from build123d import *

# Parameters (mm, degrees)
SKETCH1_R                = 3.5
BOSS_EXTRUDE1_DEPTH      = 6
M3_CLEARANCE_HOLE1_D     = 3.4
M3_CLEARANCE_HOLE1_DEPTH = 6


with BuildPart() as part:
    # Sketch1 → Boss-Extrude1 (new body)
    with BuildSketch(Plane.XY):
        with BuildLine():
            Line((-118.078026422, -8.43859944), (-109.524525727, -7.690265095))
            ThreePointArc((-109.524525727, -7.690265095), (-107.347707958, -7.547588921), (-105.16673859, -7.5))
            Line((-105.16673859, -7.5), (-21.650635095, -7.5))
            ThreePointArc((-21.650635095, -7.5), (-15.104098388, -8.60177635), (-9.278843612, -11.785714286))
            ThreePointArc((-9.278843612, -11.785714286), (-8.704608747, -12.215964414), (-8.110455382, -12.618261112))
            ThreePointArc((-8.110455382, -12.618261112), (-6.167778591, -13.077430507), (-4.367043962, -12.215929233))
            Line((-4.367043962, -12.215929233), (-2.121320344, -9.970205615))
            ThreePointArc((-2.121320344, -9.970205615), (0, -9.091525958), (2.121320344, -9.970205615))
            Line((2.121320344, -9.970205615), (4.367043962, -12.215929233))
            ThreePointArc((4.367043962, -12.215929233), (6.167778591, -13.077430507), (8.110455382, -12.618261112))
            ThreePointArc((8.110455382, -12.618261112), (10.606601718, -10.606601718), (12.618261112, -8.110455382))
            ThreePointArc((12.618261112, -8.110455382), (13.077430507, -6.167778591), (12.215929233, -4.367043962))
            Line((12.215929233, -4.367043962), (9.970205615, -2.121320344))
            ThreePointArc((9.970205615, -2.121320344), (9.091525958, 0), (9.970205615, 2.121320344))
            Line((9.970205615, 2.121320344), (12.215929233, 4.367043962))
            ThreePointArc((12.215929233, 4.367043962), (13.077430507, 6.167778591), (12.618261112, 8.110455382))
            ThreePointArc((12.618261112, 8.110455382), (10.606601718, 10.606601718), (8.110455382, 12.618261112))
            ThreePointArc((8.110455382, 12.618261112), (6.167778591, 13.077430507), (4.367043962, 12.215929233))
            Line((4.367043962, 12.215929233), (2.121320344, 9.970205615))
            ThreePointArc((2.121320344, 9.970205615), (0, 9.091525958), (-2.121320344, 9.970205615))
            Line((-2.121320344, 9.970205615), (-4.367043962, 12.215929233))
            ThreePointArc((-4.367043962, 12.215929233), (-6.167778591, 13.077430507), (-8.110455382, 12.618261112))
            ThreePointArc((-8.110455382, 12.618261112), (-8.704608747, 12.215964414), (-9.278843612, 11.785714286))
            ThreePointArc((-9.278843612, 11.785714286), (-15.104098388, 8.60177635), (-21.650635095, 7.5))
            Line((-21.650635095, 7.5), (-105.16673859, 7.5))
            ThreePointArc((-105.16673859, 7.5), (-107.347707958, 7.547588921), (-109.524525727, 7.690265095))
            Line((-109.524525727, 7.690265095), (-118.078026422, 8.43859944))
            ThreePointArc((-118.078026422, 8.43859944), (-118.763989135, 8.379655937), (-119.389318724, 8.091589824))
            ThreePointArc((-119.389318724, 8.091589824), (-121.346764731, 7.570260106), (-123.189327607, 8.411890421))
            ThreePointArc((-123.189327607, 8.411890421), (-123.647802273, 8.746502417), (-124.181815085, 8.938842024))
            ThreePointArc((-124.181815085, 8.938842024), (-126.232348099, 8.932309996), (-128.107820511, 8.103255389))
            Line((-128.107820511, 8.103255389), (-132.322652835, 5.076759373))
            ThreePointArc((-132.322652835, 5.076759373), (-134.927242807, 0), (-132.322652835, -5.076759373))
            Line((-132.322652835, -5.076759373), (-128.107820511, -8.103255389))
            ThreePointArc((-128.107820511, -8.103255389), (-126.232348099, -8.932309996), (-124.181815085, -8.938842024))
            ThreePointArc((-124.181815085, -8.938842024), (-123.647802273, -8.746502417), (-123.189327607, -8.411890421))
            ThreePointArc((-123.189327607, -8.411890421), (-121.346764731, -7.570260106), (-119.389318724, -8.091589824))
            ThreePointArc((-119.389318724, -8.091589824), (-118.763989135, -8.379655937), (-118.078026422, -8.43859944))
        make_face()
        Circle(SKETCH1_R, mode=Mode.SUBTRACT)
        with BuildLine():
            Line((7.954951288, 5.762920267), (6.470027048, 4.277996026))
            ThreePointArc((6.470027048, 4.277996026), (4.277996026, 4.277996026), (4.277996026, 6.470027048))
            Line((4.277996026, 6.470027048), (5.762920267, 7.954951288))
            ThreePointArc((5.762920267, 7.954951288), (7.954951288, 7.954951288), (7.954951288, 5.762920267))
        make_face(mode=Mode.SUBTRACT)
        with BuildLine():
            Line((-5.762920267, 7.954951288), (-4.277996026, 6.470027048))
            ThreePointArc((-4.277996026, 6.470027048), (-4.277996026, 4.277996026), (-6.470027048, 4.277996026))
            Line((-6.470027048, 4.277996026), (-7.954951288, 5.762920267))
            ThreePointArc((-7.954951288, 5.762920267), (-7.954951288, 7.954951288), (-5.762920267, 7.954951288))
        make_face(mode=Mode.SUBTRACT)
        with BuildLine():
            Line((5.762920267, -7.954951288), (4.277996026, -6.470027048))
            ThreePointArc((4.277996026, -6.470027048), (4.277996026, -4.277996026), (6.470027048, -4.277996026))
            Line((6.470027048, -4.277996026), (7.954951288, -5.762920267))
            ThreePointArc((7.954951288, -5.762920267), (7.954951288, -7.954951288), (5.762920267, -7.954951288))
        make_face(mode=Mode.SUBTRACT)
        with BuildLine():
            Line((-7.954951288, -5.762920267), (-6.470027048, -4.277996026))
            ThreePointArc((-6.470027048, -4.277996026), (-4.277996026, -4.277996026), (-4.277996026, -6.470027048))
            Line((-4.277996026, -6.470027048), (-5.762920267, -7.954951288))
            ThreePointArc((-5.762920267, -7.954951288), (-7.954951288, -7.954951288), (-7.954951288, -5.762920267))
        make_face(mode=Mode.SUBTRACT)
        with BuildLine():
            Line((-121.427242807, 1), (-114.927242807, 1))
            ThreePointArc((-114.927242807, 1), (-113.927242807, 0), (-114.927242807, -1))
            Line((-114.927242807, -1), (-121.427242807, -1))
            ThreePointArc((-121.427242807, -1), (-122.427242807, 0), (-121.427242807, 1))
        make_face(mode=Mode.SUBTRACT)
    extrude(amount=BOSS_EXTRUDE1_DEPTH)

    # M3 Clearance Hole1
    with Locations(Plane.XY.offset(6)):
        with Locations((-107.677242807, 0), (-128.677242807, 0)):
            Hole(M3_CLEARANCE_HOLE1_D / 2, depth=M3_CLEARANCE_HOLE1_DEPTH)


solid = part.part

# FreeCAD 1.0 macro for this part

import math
import FreeCAD as App
import Part
import Sketcher

V = App.Vector
Q = App.Units.Quantity

doc = App.newDocument("Part")
body = doc.addObject("PartDesign::Body", "Body")

sketch1 = doc.addObject("Sketcher::SketchObject", "Sketch")
body.addObject(sketch1)
sketch1.AttachmentSupport = (doc.XY_Plane, [""])
sketch1.MapMode = "FlatFace"
sketch1.addGeometry([
    Part.LineSegment(V(-118.1, -8.4, 0), V(-109.5, -7.7, 0)),
    Part.ArcOfCircle(Part.Circle(V(-105.2, -57.5, 0), V(0, 0, 1), 50), math.radians(90), math.radians(95)),
    Part.LineSegment(V(-105.2, -7.5, 0), V(-21.7, -7.5, 0)),
    Part.ArcOfCircle(Part.Circle(V(-21.7, -27.5, 0), V(0, 0, 1), 20), math.radians(52), math.radians(90)),
    Part.ArcOfCircle(Part.Circle(V(0, 0, 0), V(0, 0, 1), 15), math.radians(-128.21), math.radians(-122.73)),
    Part.ArcOfCircle(Part.Circle(V(-6.5, -10.1, 0), V(0, 0, 1), 3), math.radians(-123), math.radians(-45)),
    Part.LineSegment(V(-4.4, -12.2, 0), V(-2.1, -10, 0)),
    Part.ArcOfCircle(Part.Circle(V(0, -12.1, 0), V(0, 0, 1), 3), math.radians(45), math.radians(135)),
    Part.LineSegment(V(2.1, -10, 0), V(4.4, -12.2, 0)),
    Part.ArcOfCircle(Part.Circle(V(6.5, -10.1, 0), V(0, 0, 1), 3), math.radians(-135), math.radians(-57)),
    Part.ArcOfCircle(Part.Circle(V(0, 0, 0), V(0, 0, 1), 15), math.radians(-57), math.radians(-33)),
    Part.ArcOfCircle(Part.Circle(V(10.1, -6.5, 0), V(0, 0, 1), 3), math.radians(-33), math.radians(45)),
    Part.LineSegment(V(12.2, -4.4, 0), V(10, -2.1, 0)),
    Part.ArcOfCircle(Part.Circle(V(12.1, 0, 0), V(0, 0, 1), 3), math.radians(135), math.radians(225)),
    Part.LineSegment(V(10, 2.1, 0), V(12.2, 4.4, 0)),
    Part.ArcOfCircle(Part.Circle(V(10.1, 6.5, 0), V(0, 0, 1), 3), math.radians(-45), math.radians(33)),
    Part.ArcOfCircle(Part.Circle(V(0, 0, 0), V(0, 0, 1), 15), math.radians(33), math.radians(57)),
    Part.ArcOfCircle(Part.Circle(V(6.5, 10.1, 0), V(0, 0, 1), 3), math.radians(57), math.radians(135)),
    Part.LineSegment(V(4.4, 12.2, 0), V(2.1, 10, 0)),
    Part.ArcOfCircle(Part.Circle(V(0, 12.1, 0), V(0, 0, 1), 3), math.radians(-135), math.radians(-45)),
    Part.LineSegment(V(-2.1, 10, 0), V(-4.4, 12.2, 0)),
    Part.ArcOfCircle(Part.Circle(V(-6.5, 10.1, 0), V(0, 0, 1), 3), math.radians(45), math.radians(123)),
    Part.ArcOfCircle(Part.Circle(V(0, 0, 0), V(0, 0, 1), 15), math.radians(122.73), math.radians(128.21)),
    Part.ArcOfCircle(Part.Circle(V(-21.7, 27.5, 0), V(0, 0, 1), 20), math.radians(-90), math.radians(-52)),
    Part.LineSegment(V(-21.7, 7.5, 0), V(-105.2, 7.5, 0)),
    Part.ArcOfCircle(Part.Circle(V(-105.2, 57.5, 0), V(0, 0, 1), 50), math.radians(-95), math.radians(-90)),
    Part.LineSegment(V(-109.5, 7.7, 0), V(-118.1, 8.4, 0)),
    Part.ArcOfCircle(Part.Circle(V(-118.3, 6.4, 0), V(0, 0, 1), 2), math.radians(85), math.radians(125)),
    Part.ArcOfCircle(Part.Circle(V(-121.1, 10.6, 0), V(0, 0, 1), 3), math.radians(-134), math.radians(-55)),
    Part.ArcOfCircle(Part.Circle(V(-124.6, 7, 0), V(0, 0, 1), 2), math.radians(46), math.radians(78)),
    Part.ArcOfCircle(Part.Circle(V(-125.2, 4, 0), V(0, 0, 1), 5), math.radians(78), math.radians(126)),
    Part.LineSegment(V(-128.1, 8.1, 0), V(-132.3, 5.1, 0)),
    Part.ArcOfCircle(Part.Circle(V(-128.7, 0, 0), V(0, 0, 1), 6.3), math.radians(126), math.radians(234)),
    Part.LineSegment(V(-132.3, -5.1, 0), V(-128.1, -8.1, 0)),
    Part.ArcOfCircle(Part.Circle(V(-125.2, -4, 0), V(0, 0, 1), 5), math.radians(-126), math.radians(-78)),
    Part.ArcOfCircle(Part.Circle(V(-124.6, -7, 0), V(0, 0, 1), 2), math.radians(-78), math.radians(-46)),
    Part.ArcOfCircle(Part.Circle(V(-121.1, -10.6, 0), V(0, 0, 1), 3), math.radians(55), math.radians(134)),
    Part.ArcOfCircle(Part.Circle(V(-118.3, -6.4, 0), V(0, 0, 1), 2), math.radians(-125), math.radians(-85)),
    Part.ArcOfCircle(Part.Circle(V(-6.9, -6.9, 0), V(0, 0, 1), 1.6), math.radians(135), math.radians(315)),
    Part.LineSegment(V(-8, -5.8, 0), V(-6.5, -4.3, 0)),
    Part.ArcOfCircle(Part.Circle(V(-5.4, -5.4, 0), V(0, 0, 1), 1.6), math.radians(-45), math.radians(135)),
    Part.LineSegment(V(-4.3, -6.5, 0), V(-5.8, -8, 0)),
    Part.ArcOfCircle(Part.Circle(V(6.9, -6.9, 0), V(0, 0, 1), 1.6), math.radians(-135), math.radians(45)),
    Part.LineSegment(V(5.8, -8, 0), V(4.3, -6.5, 0)),
    Part.ArcOfCircle(Part.Circle(V(5.4, -5.4, 0), V(0, 0, 1), 1.6), math.radians(45), math.radians(225)),
    Part.LineSegment(V(6.5, -4.3, 0), V(8, -5.8, 0)),
    Part.ArcOfCircle(Part.Circle(V(-121.4, 0, 0), V(0, 0, 1), 1), math.radians(90), math.radians(270)),
    Part.LineSegment(V(-121.4, 1, 0), V(-114.9, 1, 0)),
    Part.ArcOfCircle(Part.Circle(V(-114.9, 0, 0), V(0, 0, 1), 1), math.radians(-90), math.radians(90)),
    Part.LineSegment(V(-114.9, -1, 0), V(-121.4, -1, 0)),
    Part.Circle(V(0, 0, 0), V(0, 0, 1), 3.5),
    Part.ArcOfCircle(Part.Circle(V(-6.9, 6.9, 0), V(0, 0, 1), 1.6), math.radians(45), math.radians(225)),
    Part.LineSegment(V(-5.8, 8, 0), V(-4.3, 6.5, 0)),
    Part.ArcOfCircle(Part.Circle(V(-5.4, 5.4, 0), V(0, 0, 1), 1.6), math.radians(-135), math.radians(45)),
    Part.LineSegment(V(-6.5, 4.3, 0), V(-8, 5.8, 0)),
    Part.ArcOfCircle(Part.Circle(V(6.9, 6.9, 0), V(0, 0, 1), 1.6), math.radians(-45), math.radians(135)),
    Part.LineSegment(V(8, 5.8, 0), V(6.5, 4.3, 0)),
    Part.ArcOfCircle(Part.Circle(V(5.4, 5.4, 0), V(0, 0, 1), 1.6), math.radians(135), math.radians(315)),
    Part.LineSegment(V(4.3, 6.5, 0), V(5.8, 8, 0)),
], False)
sketch1.addConstraint([
    Sketcher.Constraint("Tangent", 0, 2, 1, 2),
    Sketcher.Constraint("Tangent", 1, 1, 2, 1),
    Sketcher.Constraint("Tangent", 2, 2, 3, 2),
    Sketcher.Constraint("Tangent", 3, 1, 4, 1),
    Sketcher.Constraint("Tangent", 4, 2, 5, 1),
    Sketcher.Constraint("Tangent", 5, 2, 6, 1),
    Sketcher.Constraint("Tangent", 6, 2, 7, 2),
    Sketcher.Constraint("Tangent", 7, 1, 8, 1),
    Sketcher.Constraint("Tangent", 8, 2, 9, 1),
    Sketcher.Constraint("Tangent", 9, 2, 10, 1),
    Sketcher.Constraint("Tangent", 10, 2, 11, 1),
    Sketcher.Constraint("Tangent", 11, 2, 12, 1),
    Sketcher.Constraint("Tangent", 12, 2, 13, 2),
    Sketcher.Constraint("Tangent", 13, 1, 14, 1),
    Sketcher.Constraint("Tangent", 14, 2, 15, 1),
    Sketcher.Constraint("Tangent", 15, 2, 16, 1),
    Sketcher.Constraint("Tangent", 16, 2, 17, 1),
    Sketcher.Constraint("Tangent", 17, 2, 18, 1),
    Sketcher.Constraint("Tangent", 18, 2, 19, 2),
    Sketcher.Constraint("Tangent", 19, 1, 20, 1),
    Sketcher.Constraint("Tangent", 20, 2, 21, 1),
    Sketcher.Constraint("Tangent", 21, 2, 22, 1),
    Sketcher.Constraint("Tangent", 22, 2, 23, 2),
    Sketcher.Constraint("Tangent", 23, 1, 24, 1),
    Sketcher.Constraint("Tangent", 24, 2, 25, 2),
    Sketcher.Constraint("Tangent", 25, 1, 26, 1),
    Sketcher.Constraint("Tangent", 26, 2, 27, 1),
    Sketcher.Constraint("Tangent", 27, 2, 28, 2),
    Sketcher.Constraint("Tangent", 28, 1, 29, 1),
    Sketcher.Constraint("Tangent", 29, 2, 30, 1),
    Sketcher.Constraint("Tangent", 30, 2, 31, 1),
    Sketcher.Constraint("Tangent", 31, 2, 32, 1),
    Sketcher.Constraint("Tangent", 32, 2, 33, 1),
    Sketcher.Constraint("Tangent", 33, 2, 34, 1),
    Sketcher.Constraint("Tangent", 34, 2, 35, 1),
    Sketcher.Constraint("Tangent", 35, 2, 36, 2),
    Sketcher.Constraint("Tangent", 36, 1, 37, 1),
    Sketcher.Constraint("Tangent", 37, 2, 0, 1),
    Sketcher.Constraint("Tangent", 38, 1, 39, 1),
    Sketcher.Constraint("Tangent", 39, 2, 40, 2),
    Sketcher.Constraint("Tangent", 40, 1, 41, 1),
    Sketcher.Constraint("Tangent", 41, 2, 38, 2),
    Sketcher.Constraint("Tangent", 42, 1, 43, 1),
    Sketcher.Constraint("Tangent", 43, 2, 44, 2),
    Sketcher.Constraint("Tangent", 44, 1, 45, 1),
    Sketcher.Constraint("Tangent", 45, 2, 42, 2),
    Sketcher.Constraint("Tangent", 46, 1, 47, 1),
    Sketcher.Constraint("Tangent", 47, 2, 48, 2),
    Sketcher.Constraint("Tangent", 48, 1, 49, 1),
    Sketcher.Constraint("Tangent", 49, 2, 46, 2),
    Sketcher.Constraint("Tangent", 51, 1, 52, 1),
    Sketcher.Constraint("Tangent", 52, 2, 53, 2),
    Sketcher.Constraint("Tangent", 53, 1, 54, 1),
    Sketcher.Constraint("Tangent", 54, 2, 51, 2),
    Sketcher.Constraint("Tangent", 55, 1, 56, 1),
    Sketcher.Constraint("Tangent", 56, 2, 57, 2),
    Sketcher.Constraint("Tangent", 57, 1, 58, 1),
    Sketcher.Constraint("Tangent", 58, 2, 55, 2),
    Sketcher.Constraint("Horizontal", 2),
    Sketcher.Constraint("Horizontal", 24),
    Sketcher.Constraint("Horizontal", 47),
    Sketcher.Constraint("Horizontal", 49),
    Sketcher.Constraint("Coincident", 4, 3, -1, 1),
    Sketcher.Constraint("Coincident", 10, 3, -1, 1),
    Sketcher.Constraint("Coincident", 16, 3, -1, 1),
    Sketcher.Constraint("Coincident", 22, 3, -1, 1),
    Sketcher.Constraint("Coincident", 50, 3, -1, 1),
    Sketcher.Constraint("Equal", 5, 7),
    Sketcher.Constraint("Equal", 7, 9),
    Sketcher.Constraint("Equal", 4, 10),
    Sketcher.Constraint("Equal", 9, 11),
    Sketcher.Constraint("Equal", 11, 13),
    Sketcher.Constraint("Equal", 13, 15),
    Sketcher.Constraint("Equal", 10, 16),
    Sketcher.Constraint("Equal", 15, 17),
    Sketcher.Constraint("Equal", 17, 19),
    Sketcher.Constraint("Equal", 19, 21),
    Sketcher.Constraint("Equal", 16, 22),
    Sketcher.Constraint("Equal", 3, 23),
    Sketcher.Constraint("Equal", 1, 25),
    Sketcher.Constraint("Equal", 21, 28),
    Sketcher.Constraint("Equal", 27, 29),
    Sketcher.Constraint("Equal", 30, 34),
    Sketcher.Constraint("Equal", 29, 35),
    Sketcher.Constraint("Equal", 28, 36),
    Sketcher.Constraint("Equal", 35, 37),
    Sketcher.Constraint("Equal", 38, 40),
    Sketcher.Constraint("Equal", 40, 42),
    Sketcher.Constraint("Equal", 42, 44),
    Sketcher.Constraint("Equal", 44, 51),
    Sketcher.Constraint("Equal", 51, 53),
    Sketcher.Constraint("Equal", 53, 55),
    Sketcher.Constraint("Equal", 55, 57),
    Sketcher.Constraint("Symmetric", 7, 3, 19, 3, -1, 1),
    Sketcher.Constraint("Symmetric", 42, 3, 51, 3, -1, 1),
    Sketcher.Constraint("Symmetric", 44, 3, 53, 3, -1, 1),
    Sketcher.Constraint("Symmetric", 38, 3, 55, 3, -1, 1),
    Sketcher.Constraint("Symmetric", 40, 3, 57, 3, -1, 1),
    Sketcher.Constraint("Symmetric", 38, 3, 42, 3, -2),
    Sketcher.Constraint("Symmetric", 40, 3, 44, 3, -2),
    Sketcher.Constraint("Symmetric", 6, 2, 7, 1, -2),
    Sketcher.Constraint("Symmetric", 1, 3, 25, 3, -1),
    Sketcher.Constraint("Symmetric", 30, 3, 34, 3, -1),
    Sketcher.Constraint("Symmetric", 28, 3, 36, 3, -1),
    Sketcher.Constraint("Symmetric", 12, 2, 13, 1, -1),
    Sketcher.Constraint("PointOnObject", 32, 3, -1),
    Sketcher.Constraint("PointOnObject", 46, 3, -1),
    Sketcher.Constraint("Perpendicular", 6, 8),
    Sketcher.Constraint("Parallel", 8, 12),
    Sketcher.Constraint("Parallel", 14, 18),
    Sketcher.Constraint("Perpendicular", 18, 20),
    Sketcher.Constraint("Perpendicular", 20, 39),
    Sketcher.Constraint("Vertical", 27, 3, 37, 3),
    Sketcher.Constraint("Equal", 8, 12),
    Sketcher.Constraint("Diameter", 50, Q("7 mm")),
    Sketcher.Constraint("Radius", 1, Q("50 mm")),
    Sketcher.Constraint("Radius", 3, Q("20 mm")),
    Sketcher.Constraint("Radius", 4, Q("15 mm")),
    Sketcher.Constraint("Radius", 5, Q("3 mm")),
    Sketcher.Constraint("Radius", 27, Q("2 mm")),
    Sketcher.Constraint("Radius", 30, Q("5 mm")),
    Sketcher.Constraint("Radius", 46, Q("1 mm")),
    Sketcher.Constraint("Angle", 0, Q("5 deg")),
    Sketcher.Constraint("Radius", 32, Q("6.25 mm")),
    Sketcher.Constraint("Radius", 38, Q("1.55 mm")),
    Sketcher.Constraint("DistanceX", 47, 1, 47, 2, Q("6.5 mm")),
    Sketcher.Constraint("Distance", 39, Q("2.1 mm")),
    Sketcher.Constraint("DistanceY", 1, 3, -1, 1, Q("57.5 mm")),
    Sketcher.Constraint("DistanceY", -1, 1, 26, 2, Q("8.438599 mm")),
    Sketcher.Constraint("Distance", 31, Q("5.188881 mm")),
    Sketcher.Constraint("DistanceX", 2, 1, 2, 2, Q("83.516103 mm")),
    Sketcher.Constraint("DistanceY", 5, 3, -1, 1, Q("10.094609 mm")),
    Sketcher.Constraint("DistanceX", 28, 3, -1, 1, Q("121.09479 mm")),
    Sketcher.Constraint("DistanceX", 40, 3, -1, 1, Q("5.374012 mm")),
    Sketcher.Constraint("DistanceY", 40, 3, -1, 1, Q("5.374012 mm")),
    Sketcher.Constraint("DistanceY", -1, 1, 28, 1, Q("8.41189 mm")),
    Sketcher.Constraint("DistanceX", 30, 2, -1, 1, Q("128.107821 mm")),
    Sketcher.Constraint("DistanceX", 46, 3, -1, 1, Q("121.427243 mm")),
])
pad1 = doc.addObject("PartDesign::Pad", "Pad")
body.addObject(pad1)
pad1.Profile = sketch1
pad1.Length = 6

sketch2 = doc.addObject("Sketcher::SketchObject", "Sketch001")
body.addObject(sketch2)
sketch2.AttachmentSupport = (doc.XY_Plane, [""])
sketch2.MapMode = "FlatFace"
sketch2.AttachmentOffset = App.Placement(V(0, 0, 6), App.Rotation())
sketch2.addGeometry([
    Part.Circle(V(-107.7, 0, 0), V(0, 0, 1), 1.7),
    Part.Circle(V(-128.7, 0, 0), V(0, 0, 1), 1.7),
], False)
sketch2.addConstraint([
    Sketcher.Constraint("Equal", 0, 1),
    Sketcher.Constraint("PointOnObject", 0, 3, -1),
    Sketcher.Constraint("PointOnObject", 1, 3, -1),
    Sketcher.Constraint("Diameter", 0, Q("3.4 mm")),
    Sketcher.Constraint("DistanceX", 1, 3, 0, 3, Q("21 mm")),
    Sketcher.Constraint("DistanceX", 0, 3, -1, 1, Q("107.677243 mm")),
])
doc.recompute()
hole = doc.addObject("PartDesign::Hole", "Hole")
body.addObject(hole)
hole.Profile = sketch2
hole.ThreadType = "None"
hole.Diameter = 3.4
hole.DepthType = "Dimension"
hole.Depth = 6
hole.DrillPoint = "Flat"

doc.recompute()
